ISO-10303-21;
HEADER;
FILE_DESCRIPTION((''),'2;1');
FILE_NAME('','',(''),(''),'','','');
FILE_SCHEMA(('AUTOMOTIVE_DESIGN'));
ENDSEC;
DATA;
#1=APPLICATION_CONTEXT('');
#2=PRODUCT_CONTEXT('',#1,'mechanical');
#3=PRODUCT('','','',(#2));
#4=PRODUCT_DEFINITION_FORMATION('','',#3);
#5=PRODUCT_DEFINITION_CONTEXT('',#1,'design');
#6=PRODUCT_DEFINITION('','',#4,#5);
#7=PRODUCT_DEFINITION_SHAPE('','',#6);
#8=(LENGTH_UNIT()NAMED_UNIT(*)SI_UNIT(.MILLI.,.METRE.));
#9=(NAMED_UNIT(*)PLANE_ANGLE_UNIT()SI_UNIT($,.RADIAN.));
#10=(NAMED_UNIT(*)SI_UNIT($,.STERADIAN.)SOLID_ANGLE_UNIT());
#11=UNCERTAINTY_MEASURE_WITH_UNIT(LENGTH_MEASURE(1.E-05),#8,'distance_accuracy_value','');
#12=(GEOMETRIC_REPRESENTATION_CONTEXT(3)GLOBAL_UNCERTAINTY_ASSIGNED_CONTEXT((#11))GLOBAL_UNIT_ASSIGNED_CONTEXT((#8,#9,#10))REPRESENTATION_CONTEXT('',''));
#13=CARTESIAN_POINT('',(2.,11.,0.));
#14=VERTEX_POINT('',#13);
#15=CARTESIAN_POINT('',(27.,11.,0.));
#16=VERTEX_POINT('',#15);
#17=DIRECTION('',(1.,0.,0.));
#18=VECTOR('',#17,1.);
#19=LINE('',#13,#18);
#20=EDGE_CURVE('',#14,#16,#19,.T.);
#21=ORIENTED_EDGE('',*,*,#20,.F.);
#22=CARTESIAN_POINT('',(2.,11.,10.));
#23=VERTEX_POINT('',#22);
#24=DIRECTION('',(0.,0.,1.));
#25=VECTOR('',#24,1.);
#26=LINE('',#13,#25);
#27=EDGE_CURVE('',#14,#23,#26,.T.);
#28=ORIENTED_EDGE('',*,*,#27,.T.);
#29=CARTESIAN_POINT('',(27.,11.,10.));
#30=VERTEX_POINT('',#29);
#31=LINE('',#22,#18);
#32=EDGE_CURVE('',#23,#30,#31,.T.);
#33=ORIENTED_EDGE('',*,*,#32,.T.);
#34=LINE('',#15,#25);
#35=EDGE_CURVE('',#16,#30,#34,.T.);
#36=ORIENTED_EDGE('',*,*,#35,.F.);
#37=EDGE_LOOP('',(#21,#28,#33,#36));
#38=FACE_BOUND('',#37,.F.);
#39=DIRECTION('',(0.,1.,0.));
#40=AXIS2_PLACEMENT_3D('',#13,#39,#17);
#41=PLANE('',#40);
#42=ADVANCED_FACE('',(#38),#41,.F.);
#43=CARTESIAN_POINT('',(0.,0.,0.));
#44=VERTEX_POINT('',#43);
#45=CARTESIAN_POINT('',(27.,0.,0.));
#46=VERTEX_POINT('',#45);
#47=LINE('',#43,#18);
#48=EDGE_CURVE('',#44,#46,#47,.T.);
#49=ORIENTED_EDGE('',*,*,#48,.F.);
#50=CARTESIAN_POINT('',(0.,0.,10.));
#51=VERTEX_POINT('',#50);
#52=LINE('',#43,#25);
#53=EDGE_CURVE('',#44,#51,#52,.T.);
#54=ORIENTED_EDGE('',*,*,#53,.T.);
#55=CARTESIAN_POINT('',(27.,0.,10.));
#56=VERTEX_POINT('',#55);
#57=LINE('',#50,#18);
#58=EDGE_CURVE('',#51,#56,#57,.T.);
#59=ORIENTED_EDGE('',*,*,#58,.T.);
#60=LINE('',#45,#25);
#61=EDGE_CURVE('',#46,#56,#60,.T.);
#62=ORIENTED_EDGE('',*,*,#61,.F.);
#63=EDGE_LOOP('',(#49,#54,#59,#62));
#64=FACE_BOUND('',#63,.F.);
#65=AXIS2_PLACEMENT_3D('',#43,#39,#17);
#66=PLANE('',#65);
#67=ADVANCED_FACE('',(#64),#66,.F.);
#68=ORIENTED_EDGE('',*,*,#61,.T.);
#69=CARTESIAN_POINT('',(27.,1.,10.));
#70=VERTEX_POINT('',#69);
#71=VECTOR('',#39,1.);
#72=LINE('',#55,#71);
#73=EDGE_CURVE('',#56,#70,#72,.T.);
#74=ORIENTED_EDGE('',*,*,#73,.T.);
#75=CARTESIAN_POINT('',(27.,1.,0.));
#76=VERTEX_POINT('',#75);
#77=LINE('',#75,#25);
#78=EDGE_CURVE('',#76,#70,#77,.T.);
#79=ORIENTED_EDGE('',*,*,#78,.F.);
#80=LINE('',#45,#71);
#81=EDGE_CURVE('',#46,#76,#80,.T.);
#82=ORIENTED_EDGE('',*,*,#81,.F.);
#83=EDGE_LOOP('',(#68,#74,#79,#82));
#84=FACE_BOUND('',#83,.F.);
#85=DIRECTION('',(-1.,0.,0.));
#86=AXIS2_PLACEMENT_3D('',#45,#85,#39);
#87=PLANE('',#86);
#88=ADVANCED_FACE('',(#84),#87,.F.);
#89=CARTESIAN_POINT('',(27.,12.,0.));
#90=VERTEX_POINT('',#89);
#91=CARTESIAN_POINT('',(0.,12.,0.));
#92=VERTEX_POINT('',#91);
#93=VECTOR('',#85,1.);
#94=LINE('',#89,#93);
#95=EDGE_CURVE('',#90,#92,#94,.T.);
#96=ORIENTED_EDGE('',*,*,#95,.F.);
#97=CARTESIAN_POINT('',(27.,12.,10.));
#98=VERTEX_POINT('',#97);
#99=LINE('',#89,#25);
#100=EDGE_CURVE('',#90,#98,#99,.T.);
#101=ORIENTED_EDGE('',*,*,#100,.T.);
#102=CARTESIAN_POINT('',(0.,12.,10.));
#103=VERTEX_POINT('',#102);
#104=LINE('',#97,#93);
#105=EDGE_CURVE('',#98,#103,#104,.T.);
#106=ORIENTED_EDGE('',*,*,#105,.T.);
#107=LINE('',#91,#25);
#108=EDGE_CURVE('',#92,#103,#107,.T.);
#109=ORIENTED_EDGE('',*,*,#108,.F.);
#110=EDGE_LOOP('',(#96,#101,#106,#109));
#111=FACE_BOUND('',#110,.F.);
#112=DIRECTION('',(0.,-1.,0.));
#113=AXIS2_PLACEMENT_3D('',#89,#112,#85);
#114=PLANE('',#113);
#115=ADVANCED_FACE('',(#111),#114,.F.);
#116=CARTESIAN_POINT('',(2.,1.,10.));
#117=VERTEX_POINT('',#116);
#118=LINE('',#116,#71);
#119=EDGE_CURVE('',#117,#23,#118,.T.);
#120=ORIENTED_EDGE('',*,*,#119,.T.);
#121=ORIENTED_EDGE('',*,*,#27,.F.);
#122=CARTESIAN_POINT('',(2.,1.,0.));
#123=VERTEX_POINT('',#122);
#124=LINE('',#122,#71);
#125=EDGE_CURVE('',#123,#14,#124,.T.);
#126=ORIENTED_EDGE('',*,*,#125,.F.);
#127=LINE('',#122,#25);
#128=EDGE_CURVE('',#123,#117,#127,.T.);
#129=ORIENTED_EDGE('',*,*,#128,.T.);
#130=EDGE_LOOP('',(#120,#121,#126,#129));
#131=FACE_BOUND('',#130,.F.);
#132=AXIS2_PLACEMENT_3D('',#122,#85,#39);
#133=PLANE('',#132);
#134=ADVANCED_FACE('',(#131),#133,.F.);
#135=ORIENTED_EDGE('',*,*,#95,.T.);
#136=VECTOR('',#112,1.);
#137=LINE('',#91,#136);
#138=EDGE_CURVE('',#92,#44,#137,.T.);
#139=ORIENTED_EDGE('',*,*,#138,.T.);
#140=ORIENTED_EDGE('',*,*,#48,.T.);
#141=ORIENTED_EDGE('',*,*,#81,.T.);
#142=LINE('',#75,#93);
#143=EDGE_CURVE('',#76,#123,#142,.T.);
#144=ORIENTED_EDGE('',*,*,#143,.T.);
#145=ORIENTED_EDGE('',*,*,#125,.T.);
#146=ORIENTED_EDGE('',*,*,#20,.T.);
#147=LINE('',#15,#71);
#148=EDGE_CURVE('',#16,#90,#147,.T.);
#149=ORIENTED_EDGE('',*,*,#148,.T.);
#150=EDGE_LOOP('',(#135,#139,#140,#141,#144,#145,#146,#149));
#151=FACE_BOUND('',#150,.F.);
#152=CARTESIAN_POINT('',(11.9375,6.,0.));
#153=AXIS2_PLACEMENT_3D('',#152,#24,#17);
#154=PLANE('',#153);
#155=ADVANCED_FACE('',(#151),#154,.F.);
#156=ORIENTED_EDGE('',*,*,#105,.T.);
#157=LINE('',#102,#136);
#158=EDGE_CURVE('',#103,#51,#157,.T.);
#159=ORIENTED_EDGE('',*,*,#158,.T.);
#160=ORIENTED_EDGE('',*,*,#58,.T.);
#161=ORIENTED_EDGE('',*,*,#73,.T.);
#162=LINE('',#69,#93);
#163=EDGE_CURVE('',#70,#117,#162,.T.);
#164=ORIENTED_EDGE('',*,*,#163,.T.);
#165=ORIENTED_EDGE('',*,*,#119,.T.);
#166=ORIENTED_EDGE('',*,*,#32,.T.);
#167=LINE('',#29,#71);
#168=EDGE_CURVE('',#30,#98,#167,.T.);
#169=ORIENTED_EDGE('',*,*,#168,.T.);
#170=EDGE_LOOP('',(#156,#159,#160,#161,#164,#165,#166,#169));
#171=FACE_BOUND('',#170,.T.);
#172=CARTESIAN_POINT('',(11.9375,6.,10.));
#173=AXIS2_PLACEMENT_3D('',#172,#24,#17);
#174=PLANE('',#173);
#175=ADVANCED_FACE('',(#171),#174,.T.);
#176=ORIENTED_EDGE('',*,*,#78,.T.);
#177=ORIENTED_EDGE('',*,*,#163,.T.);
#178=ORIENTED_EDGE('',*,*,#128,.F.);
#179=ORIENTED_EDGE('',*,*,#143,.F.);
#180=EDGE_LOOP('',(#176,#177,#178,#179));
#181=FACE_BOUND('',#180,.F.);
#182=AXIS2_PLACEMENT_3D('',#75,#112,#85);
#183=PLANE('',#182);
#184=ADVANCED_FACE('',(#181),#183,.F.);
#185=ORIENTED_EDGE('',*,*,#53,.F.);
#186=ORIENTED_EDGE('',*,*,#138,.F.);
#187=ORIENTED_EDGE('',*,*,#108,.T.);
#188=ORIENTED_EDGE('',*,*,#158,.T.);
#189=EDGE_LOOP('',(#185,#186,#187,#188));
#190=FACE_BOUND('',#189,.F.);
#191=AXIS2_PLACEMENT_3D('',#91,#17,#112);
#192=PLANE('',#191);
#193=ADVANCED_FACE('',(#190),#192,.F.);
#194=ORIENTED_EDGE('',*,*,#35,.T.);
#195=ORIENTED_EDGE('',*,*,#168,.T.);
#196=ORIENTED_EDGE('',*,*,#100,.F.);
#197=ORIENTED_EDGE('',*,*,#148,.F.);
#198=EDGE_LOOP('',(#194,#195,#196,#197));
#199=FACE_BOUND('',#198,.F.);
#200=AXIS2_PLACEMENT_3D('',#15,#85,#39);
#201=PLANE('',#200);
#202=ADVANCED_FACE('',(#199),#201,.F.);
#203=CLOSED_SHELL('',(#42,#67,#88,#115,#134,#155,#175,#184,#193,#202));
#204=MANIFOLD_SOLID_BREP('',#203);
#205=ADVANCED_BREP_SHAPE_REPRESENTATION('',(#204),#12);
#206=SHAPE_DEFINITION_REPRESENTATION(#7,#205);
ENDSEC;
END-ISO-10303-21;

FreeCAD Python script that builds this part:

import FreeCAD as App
import Part
import Sketcher

V = App.Vector

doc = App.newDocument("Part")
params = doc.addObject("Spreadsheet::Sheet", "Params")
for row, (alias, value) in enumerate([
    ("sketch1_width", "27 mm"),
    ("sketch1_width2", "25 mm"),
    ("sketch1_height", "12 mm"),
    ("sketch1_height2", "1 mm"),
    ("pad1_length", "10 mm"),
], start=1):
    params.set(f"A{row}", alias)
    params.set(f"B{row}", "=" + value)
    params.setAlias(f"B{row}", alias)

body = doc.addObject("PartDesign::Body", "Body")

# Sketch on XY plane
sketch1 = doc.addObject("Sketcher::SketchObject", "Sketch")
body.addObject(sketch1)
sketch1.AttachmentSupport = (doc.XY_Plane, [""])
sketch1.MapMode = "FlatFace"
sketch1.addGeometry([
    Part.LineSegment(V(0, 12, 0), V(0, 0, 0)),  # 0
    Part.LineSegment(V(0, 0, 0), V(27, 0, 0)),  # 1
    Part.LineSegment(V(27, 0, 0), V(27, 1, 0)),  # 2
    Part.LineSegment(V(27, 1, 0), V(2, 1, 0)),  # 3
    Part.LineSegment(V(2, 1, 0), V(2, 11, 0)),  # 4
    Part.LineSegment(V(2, 11, 0), V(27, 11, 0)),  # 5
    Part.LineSegment(V(27, 11, 0), V(27, 12, 0)),  # 6
    Part.LineSegment(V(27, 12, 0), V(0, 12, 0)),  # 7
], False)
sketch1.addConstraint([
    Sketcher.Constraint("Coincident", 0, 2, 1, 1),
    Sketcher.Constraint("Coincident", 1, 2, 2, 1),
    Sketcher.Constraint("Coincident", 2, 2, 3, 1),
    Sketcher.Constraint("Coincident", 3, 2, 4, 1),
    Sketcher.Constraint("Coincident", 4, 2, 5, 1),
    Sketcher.Constraint("Coincident", 5, 2, 6, 1),
    Sketcher.Constraint("Coincident", 6, 2, 7, 1),
    Sketcher.Constraint("Coincident", 7, 2, 0, 1),
    Sketcher.Constraint("Vertical", 0),
    Sketcher.Constraint("Horizontal", 1),
    Sketcher.Constraint("Vertical", 2),
    Sketcher.Constraint("Horizontal", 3),
    Sketcher.Constraint("Vertical", 4),
    Sketcher.Constraint("Horizontal", 5),
    Sketcher.Constraint("Vertical", 6),
    Sketcher.Constraint("Horizontal", 7),
    Sketcher.Constraint("Coincident", 0, 2, -1, 1),
    Sketcher.Constraint("Vertical", 2, 2, 5, 2),
    Sketcher.Constraint("Equal", 2, 6),
    Sketcher.Constraint("DistanceX", 1, 1, 1, 2, 27.0),
    Sketcher.Constraint("DistanceX", 3, 2, 3, 1, 25.0),
    Sketcher.Constraint("DistanceY", 0, 2, 0, 1, 12.0),
    Sketcher.Constraint("DistanceY", 2, 1, 2, 2, 1.0),
])
sketch1.setExpression("Constraints[19]", "Params.sketch1_width")
sketch1.setExpression("Constraints[20]", "Params.sketch1_width2")
sketch1.setExpression("Constraints[21]", "Params.sketch1_height")
sketch1.setExpression("Constraints[22]", "Params.sketch1_height2")
pad1 = doc.addObject("PartDesign::Pad", "Pad")
body.addObject(pad1)
pad1.Profile = sketch1
pad1.setExpression("Length", "Params.pad1_length")

doc.recompute()
